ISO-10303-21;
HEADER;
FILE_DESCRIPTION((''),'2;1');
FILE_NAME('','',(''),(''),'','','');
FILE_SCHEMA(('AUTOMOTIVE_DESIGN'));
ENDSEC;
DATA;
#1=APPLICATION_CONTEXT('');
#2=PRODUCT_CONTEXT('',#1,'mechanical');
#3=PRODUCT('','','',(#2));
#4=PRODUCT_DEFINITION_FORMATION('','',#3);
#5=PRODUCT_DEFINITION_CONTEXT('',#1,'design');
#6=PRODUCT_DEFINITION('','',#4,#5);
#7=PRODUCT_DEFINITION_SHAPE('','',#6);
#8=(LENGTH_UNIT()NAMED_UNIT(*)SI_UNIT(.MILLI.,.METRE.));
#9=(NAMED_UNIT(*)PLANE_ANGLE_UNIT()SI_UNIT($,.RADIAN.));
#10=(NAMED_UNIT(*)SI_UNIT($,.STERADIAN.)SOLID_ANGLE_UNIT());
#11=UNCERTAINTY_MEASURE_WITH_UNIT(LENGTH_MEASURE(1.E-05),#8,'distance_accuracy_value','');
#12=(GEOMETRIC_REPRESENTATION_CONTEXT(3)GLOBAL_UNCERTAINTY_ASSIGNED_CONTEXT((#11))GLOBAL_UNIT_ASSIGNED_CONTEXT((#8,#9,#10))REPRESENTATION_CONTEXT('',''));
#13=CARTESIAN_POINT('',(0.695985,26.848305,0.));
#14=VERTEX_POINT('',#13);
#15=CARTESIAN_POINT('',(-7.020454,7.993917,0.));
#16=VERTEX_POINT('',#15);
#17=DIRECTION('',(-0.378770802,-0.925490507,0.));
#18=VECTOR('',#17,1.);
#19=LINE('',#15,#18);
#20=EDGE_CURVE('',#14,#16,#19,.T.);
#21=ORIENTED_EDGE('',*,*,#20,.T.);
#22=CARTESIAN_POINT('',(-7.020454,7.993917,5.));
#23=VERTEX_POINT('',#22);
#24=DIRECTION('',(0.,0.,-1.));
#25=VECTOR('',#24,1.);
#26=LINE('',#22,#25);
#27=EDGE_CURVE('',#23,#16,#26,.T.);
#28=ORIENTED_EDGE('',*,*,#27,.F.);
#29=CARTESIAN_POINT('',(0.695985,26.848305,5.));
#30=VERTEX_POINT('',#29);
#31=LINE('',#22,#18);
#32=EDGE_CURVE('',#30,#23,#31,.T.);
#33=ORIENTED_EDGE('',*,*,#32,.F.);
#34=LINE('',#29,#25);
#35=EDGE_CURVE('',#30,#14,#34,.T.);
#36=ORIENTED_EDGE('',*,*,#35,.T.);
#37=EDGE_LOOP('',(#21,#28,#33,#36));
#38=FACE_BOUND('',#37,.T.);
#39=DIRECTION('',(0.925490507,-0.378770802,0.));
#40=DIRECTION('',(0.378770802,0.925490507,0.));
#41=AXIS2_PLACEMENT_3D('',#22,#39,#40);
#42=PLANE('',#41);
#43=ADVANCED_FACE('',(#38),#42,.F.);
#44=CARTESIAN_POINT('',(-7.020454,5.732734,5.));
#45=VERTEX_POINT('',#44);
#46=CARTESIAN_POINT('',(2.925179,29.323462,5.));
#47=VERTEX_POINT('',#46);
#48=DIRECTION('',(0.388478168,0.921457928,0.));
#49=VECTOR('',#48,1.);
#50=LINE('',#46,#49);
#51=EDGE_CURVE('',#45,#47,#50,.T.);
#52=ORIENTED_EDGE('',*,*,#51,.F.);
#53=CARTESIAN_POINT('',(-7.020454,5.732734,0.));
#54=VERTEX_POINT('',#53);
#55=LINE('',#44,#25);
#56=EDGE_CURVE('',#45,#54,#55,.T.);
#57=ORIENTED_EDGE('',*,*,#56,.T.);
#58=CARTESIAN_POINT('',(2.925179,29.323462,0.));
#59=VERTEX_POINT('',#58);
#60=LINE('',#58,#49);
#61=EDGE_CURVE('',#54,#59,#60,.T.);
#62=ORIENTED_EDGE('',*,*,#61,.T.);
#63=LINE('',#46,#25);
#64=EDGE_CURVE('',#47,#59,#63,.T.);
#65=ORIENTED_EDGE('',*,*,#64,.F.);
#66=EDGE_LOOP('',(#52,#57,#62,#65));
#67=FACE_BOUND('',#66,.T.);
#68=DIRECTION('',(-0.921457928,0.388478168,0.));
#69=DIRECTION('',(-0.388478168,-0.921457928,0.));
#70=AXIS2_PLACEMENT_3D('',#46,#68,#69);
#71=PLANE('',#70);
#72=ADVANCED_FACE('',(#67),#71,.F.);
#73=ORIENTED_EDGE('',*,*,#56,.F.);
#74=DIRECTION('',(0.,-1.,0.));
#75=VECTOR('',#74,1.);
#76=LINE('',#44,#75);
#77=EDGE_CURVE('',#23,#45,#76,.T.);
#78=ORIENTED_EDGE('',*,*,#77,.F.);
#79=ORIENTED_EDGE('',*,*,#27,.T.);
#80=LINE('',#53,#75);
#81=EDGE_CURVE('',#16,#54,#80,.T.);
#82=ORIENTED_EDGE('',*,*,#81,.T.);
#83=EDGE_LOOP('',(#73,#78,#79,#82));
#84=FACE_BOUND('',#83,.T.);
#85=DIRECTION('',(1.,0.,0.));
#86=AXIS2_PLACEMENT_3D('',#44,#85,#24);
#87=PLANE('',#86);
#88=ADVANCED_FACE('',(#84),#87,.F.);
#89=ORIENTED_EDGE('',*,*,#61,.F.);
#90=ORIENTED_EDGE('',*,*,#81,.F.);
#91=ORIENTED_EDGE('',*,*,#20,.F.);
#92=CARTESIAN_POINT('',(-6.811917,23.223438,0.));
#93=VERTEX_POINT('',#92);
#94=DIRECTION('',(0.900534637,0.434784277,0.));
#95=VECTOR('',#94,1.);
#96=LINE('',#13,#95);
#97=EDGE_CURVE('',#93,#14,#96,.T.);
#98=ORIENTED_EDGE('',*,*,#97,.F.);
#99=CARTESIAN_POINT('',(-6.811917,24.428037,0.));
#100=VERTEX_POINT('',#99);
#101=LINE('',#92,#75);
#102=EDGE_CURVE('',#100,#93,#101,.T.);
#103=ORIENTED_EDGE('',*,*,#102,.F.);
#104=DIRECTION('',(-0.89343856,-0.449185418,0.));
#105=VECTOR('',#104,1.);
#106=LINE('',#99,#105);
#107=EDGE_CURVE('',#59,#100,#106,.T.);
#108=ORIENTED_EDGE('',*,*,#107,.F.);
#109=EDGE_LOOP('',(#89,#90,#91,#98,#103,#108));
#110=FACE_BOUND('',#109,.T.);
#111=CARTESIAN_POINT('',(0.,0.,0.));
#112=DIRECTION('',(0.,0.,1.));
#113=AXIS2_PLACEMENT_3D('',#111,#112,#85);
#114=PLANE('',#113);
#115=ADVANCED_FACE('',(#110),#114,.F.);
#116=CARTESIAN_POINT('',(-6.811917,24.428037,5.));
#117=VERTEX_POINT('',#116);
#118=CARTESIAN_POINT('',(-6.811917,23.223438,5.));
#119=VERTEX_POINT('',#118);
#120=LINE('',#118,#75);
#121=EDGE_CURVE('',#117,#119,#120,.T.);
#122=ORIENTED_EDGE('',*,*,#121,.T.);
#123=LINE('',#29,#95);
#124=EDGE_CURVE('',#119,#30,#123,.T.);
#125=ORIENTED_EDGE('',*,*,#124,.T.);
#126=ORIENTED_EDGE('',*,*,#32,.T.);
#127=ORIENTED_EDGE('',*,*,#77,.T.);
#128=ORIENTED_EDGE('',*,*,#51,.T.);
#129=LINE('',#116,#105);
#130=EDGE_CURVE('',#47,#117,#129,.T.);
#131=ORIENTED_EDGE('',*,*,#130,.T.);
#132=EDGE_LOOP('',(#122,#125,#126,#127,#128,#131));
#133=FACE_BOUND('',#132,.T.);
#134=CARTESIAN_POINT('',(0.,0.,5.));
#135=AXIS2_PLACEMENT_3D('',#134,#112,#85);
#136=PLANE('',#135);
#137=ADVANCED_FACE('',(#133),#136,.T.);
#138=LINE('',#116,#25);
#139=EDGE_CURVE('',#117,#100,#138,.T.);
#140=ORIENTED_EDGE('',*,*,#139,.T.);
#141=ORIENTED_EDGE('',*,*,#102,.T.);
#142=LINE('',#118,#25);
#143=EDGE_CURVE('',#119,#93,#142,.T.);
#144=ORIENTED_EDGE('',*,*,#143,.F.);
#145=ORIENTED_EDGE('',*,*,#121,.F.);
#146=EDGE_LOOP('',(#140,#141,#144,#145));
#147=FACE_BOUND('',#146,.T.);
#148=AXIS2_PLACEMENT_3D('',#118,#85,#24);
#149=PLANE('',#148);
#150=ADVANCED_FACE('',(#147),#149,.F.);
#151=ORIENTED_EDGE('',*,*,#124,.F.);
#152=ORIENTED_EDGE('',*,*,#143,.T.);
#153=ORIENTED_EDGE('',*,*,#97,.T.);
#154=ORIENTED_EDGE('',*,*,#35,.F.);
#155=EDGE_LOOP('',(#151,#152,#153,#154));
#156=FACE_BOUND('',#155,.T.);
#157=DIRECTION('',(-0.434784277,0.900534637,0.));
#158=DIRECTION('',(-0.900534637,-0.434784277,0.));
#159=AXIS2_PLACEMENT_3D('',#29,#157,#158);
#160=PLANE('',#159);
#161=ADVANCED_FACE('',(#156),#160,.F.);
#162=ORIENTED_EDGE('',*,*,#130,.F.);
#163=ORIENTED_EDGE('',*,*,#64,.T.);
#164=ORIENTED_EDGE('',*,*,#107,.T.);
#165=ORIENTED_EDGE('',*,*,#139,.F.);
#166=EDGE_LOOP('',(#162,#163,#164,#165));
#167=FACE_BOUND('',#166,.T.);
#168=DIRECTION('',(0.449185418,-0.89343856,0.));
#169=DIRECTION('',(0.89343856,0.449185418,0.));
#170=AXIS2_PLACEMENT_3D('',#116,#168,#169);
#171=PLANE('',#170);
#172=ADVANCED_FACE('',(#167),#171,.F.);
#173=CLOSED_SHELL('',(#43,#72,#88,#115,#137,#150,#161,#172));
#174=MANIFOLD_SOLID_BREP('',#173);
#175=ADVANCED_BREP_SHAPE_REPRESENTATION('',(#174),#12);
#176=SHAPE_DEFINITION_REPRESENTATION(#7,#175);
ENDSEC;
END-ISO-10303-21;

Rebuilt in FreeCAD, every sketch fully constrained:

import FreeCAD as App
import Part
import Sketcher

V = App.Vector


def add_polygon(sketch, points):
    """Adds a closed chain of lines whose ends are joined by coincident constraints."""
    first, n = sketch.GeometryCount, len(points)
    for a, b in zip(points, points[1:] + points[:1]):
        sketch.addGeometry(Part.LineSegment(App.Vector(*a, 0), App.Vector(*b, 0)), False)
    for i in range(n):
        sketch.addConstraint(Sketcher.Constraint("Coincident", first + i, 2, first + (i + 1) % n, 1))

doc = App.newDocument("Part")
body = doc.addObject("PartDesign::Body", "Body")

sketch1 = body.newObject("Sketcher::SketchObject", "Sketch")
sketch1.AttachmentSupport = (doc.getObject("XY_Plane"), [""])
sketch1.MapMode = "FlatFace"
add_polygon(sketch1, [(2.925179, 29.323462), (-6.811917, 24.428037), (-6.811917, 23.223438), (0.695985, 26.848305), (-7.020454, 7.993917), (-7.020454, 5.732734)])
sketch1.addConstraint([
    Sketcher.Constraint("Vertical", 1),
    Sketcher.Constraint("Vertical", 4),
    Sketcher.Constraint("DistanceY", 1, 2, 1, 1, 1.204599),
    Sketcher.Constraint("Distance", 0, 10.898451),
    Sketcher.Constraint("Distance", 2, 8.337161),
    Sketcher.Constraint("Distance", 3, 20.372319),
    Sketcher.Constraint("DistanceY", 4, 2, 4, 1, 2.261183),
    Sketcher.Constraint("DistanceY", -1, 1, 1, 2, 23.223438),
    Sketcher.Constraint("DistanceX", -1, 1, 5, 2, 2.925179),
    Sketcher.Constraint("DistanceY", 0, 2, 2, 2, 2.420268),
    Sketcher.Constraint("DistanceY", 3, 2, 1, 2, 15.229521),
    Sketcher.Constraint("Distance", 5, 25.601525),
])
pad1 = body.newObject("PartDesign::Pad", "Pad")
pad1.Profile = sketch1
pad1.Length = 5

doc.recompute()
